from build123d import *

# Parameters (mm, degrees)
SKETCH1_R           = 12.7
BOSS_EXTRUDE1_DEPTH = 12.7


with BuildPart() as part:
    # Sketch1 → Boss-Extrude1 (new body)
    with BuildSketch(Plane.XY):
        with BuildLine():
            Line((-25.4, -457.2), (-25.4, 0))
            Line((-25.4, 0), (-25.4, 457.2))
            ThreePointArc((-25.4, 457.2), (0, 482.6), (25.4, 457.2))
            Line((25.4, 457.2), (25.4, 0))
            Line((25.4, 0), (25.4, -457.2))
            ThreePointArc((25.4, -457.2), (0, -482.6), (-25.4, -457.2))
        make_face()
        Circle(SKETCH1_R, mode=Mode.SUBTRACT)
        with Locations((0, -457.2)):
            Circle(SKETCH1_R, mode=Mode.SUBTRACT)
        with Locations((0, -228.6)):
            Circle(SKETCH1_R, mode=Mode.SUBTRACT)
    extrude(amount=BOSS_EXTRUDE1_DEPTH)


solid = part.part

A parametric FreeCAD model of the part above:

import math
import FreeCAD as App
import Part
import Sketcher
Q = App.Units.Quantity

doc = App.newDocument("Part")
body = doc.addObject("PartDesign::Body", "Body")

sketch1 = body.newObject("Sketcher::SketchObject", "Sketch")
sketch1.AttachmentSupport = (doc.getObject("XY_Plane"), [""])
sketch1.MapMode = "FlatFace"
sketch1.addGeometry([
    Part.LineSegment(App.Vector(-25, 457, 0), App.Vector(-25, -457, 0)),
    Part.ArcOfCircle(Part.Circle(App.Vector(0, -457, 0), App.Vector(0, 0, 1), 25), math.radians(180), math.radians(360)),
    Part.LineSegment(App.Vector(25, -457, 0), App.Vector(25, 457, 0)),
    Part.ArcOfCircle(Part.Circle(App.Vector(0, 457, 0), App.Vector(0, 0, 1), 25), math.radians(0), math.radians(180)),
    Part.Circle(App.Vector(0, -457, 0), App.Vector(0, 0, 1), 13),
    Part.Circle(App.Vector(0, -229, 0), App.Vector(0, 0, 1), 13),
    Part.Circle(App.Vector(0, 0, 0), App.Vector(0, 0, 1), 13),
], False)
sketch1.addConstraint([
    Sketcher.Constraint("Tangent", 0, 2, 1, 1),
    Sketcher.Constraint("Tangent", 1, 2, 2, 1),
    Sketcher.Constraint("Tangent", 2, 2, 3, 1),
    Sketcher.Constraint("Tangent", 3, 2, 0, 1),
    Sketcher.Constraint("Vertical", 0),
    Sketcher.Constraint("Vertical", 2),
    Sketcher.Constraint("Coincident", 6, 3, -1, 1),
    Sketcher.Constraint("Coincident", 4, 3, 1, 3),
    Sketcher.Constraint("Equal", 4, 5),
    Sketcher.Constraint("Equal", 5, 6),
    Sketcher.Constraint("Symmetric", 1, 3, 3, 3, -1, 1),
    Sketcher.Constraint("PointOnObject", 5, 3, -2),
    Sketcher.Constraint("Diameter", 4, Q("1 in")),
    Sketcher.Constraint("Radius", 1, Q("1 in")),
    Sketcher.Constraint("DistanceY", 0, 2, 0, 1, Q("36 in")),
    Sketcher.Constraint("DistanceY", 5, 3, -1, 1, Q("9 in")),
])
pad1 = body.newObject("PartDesign::Pad", "Pad")
pad1.Profile = sketch1
pad1.Length = Q("0.5 in")

doc.recompute()
